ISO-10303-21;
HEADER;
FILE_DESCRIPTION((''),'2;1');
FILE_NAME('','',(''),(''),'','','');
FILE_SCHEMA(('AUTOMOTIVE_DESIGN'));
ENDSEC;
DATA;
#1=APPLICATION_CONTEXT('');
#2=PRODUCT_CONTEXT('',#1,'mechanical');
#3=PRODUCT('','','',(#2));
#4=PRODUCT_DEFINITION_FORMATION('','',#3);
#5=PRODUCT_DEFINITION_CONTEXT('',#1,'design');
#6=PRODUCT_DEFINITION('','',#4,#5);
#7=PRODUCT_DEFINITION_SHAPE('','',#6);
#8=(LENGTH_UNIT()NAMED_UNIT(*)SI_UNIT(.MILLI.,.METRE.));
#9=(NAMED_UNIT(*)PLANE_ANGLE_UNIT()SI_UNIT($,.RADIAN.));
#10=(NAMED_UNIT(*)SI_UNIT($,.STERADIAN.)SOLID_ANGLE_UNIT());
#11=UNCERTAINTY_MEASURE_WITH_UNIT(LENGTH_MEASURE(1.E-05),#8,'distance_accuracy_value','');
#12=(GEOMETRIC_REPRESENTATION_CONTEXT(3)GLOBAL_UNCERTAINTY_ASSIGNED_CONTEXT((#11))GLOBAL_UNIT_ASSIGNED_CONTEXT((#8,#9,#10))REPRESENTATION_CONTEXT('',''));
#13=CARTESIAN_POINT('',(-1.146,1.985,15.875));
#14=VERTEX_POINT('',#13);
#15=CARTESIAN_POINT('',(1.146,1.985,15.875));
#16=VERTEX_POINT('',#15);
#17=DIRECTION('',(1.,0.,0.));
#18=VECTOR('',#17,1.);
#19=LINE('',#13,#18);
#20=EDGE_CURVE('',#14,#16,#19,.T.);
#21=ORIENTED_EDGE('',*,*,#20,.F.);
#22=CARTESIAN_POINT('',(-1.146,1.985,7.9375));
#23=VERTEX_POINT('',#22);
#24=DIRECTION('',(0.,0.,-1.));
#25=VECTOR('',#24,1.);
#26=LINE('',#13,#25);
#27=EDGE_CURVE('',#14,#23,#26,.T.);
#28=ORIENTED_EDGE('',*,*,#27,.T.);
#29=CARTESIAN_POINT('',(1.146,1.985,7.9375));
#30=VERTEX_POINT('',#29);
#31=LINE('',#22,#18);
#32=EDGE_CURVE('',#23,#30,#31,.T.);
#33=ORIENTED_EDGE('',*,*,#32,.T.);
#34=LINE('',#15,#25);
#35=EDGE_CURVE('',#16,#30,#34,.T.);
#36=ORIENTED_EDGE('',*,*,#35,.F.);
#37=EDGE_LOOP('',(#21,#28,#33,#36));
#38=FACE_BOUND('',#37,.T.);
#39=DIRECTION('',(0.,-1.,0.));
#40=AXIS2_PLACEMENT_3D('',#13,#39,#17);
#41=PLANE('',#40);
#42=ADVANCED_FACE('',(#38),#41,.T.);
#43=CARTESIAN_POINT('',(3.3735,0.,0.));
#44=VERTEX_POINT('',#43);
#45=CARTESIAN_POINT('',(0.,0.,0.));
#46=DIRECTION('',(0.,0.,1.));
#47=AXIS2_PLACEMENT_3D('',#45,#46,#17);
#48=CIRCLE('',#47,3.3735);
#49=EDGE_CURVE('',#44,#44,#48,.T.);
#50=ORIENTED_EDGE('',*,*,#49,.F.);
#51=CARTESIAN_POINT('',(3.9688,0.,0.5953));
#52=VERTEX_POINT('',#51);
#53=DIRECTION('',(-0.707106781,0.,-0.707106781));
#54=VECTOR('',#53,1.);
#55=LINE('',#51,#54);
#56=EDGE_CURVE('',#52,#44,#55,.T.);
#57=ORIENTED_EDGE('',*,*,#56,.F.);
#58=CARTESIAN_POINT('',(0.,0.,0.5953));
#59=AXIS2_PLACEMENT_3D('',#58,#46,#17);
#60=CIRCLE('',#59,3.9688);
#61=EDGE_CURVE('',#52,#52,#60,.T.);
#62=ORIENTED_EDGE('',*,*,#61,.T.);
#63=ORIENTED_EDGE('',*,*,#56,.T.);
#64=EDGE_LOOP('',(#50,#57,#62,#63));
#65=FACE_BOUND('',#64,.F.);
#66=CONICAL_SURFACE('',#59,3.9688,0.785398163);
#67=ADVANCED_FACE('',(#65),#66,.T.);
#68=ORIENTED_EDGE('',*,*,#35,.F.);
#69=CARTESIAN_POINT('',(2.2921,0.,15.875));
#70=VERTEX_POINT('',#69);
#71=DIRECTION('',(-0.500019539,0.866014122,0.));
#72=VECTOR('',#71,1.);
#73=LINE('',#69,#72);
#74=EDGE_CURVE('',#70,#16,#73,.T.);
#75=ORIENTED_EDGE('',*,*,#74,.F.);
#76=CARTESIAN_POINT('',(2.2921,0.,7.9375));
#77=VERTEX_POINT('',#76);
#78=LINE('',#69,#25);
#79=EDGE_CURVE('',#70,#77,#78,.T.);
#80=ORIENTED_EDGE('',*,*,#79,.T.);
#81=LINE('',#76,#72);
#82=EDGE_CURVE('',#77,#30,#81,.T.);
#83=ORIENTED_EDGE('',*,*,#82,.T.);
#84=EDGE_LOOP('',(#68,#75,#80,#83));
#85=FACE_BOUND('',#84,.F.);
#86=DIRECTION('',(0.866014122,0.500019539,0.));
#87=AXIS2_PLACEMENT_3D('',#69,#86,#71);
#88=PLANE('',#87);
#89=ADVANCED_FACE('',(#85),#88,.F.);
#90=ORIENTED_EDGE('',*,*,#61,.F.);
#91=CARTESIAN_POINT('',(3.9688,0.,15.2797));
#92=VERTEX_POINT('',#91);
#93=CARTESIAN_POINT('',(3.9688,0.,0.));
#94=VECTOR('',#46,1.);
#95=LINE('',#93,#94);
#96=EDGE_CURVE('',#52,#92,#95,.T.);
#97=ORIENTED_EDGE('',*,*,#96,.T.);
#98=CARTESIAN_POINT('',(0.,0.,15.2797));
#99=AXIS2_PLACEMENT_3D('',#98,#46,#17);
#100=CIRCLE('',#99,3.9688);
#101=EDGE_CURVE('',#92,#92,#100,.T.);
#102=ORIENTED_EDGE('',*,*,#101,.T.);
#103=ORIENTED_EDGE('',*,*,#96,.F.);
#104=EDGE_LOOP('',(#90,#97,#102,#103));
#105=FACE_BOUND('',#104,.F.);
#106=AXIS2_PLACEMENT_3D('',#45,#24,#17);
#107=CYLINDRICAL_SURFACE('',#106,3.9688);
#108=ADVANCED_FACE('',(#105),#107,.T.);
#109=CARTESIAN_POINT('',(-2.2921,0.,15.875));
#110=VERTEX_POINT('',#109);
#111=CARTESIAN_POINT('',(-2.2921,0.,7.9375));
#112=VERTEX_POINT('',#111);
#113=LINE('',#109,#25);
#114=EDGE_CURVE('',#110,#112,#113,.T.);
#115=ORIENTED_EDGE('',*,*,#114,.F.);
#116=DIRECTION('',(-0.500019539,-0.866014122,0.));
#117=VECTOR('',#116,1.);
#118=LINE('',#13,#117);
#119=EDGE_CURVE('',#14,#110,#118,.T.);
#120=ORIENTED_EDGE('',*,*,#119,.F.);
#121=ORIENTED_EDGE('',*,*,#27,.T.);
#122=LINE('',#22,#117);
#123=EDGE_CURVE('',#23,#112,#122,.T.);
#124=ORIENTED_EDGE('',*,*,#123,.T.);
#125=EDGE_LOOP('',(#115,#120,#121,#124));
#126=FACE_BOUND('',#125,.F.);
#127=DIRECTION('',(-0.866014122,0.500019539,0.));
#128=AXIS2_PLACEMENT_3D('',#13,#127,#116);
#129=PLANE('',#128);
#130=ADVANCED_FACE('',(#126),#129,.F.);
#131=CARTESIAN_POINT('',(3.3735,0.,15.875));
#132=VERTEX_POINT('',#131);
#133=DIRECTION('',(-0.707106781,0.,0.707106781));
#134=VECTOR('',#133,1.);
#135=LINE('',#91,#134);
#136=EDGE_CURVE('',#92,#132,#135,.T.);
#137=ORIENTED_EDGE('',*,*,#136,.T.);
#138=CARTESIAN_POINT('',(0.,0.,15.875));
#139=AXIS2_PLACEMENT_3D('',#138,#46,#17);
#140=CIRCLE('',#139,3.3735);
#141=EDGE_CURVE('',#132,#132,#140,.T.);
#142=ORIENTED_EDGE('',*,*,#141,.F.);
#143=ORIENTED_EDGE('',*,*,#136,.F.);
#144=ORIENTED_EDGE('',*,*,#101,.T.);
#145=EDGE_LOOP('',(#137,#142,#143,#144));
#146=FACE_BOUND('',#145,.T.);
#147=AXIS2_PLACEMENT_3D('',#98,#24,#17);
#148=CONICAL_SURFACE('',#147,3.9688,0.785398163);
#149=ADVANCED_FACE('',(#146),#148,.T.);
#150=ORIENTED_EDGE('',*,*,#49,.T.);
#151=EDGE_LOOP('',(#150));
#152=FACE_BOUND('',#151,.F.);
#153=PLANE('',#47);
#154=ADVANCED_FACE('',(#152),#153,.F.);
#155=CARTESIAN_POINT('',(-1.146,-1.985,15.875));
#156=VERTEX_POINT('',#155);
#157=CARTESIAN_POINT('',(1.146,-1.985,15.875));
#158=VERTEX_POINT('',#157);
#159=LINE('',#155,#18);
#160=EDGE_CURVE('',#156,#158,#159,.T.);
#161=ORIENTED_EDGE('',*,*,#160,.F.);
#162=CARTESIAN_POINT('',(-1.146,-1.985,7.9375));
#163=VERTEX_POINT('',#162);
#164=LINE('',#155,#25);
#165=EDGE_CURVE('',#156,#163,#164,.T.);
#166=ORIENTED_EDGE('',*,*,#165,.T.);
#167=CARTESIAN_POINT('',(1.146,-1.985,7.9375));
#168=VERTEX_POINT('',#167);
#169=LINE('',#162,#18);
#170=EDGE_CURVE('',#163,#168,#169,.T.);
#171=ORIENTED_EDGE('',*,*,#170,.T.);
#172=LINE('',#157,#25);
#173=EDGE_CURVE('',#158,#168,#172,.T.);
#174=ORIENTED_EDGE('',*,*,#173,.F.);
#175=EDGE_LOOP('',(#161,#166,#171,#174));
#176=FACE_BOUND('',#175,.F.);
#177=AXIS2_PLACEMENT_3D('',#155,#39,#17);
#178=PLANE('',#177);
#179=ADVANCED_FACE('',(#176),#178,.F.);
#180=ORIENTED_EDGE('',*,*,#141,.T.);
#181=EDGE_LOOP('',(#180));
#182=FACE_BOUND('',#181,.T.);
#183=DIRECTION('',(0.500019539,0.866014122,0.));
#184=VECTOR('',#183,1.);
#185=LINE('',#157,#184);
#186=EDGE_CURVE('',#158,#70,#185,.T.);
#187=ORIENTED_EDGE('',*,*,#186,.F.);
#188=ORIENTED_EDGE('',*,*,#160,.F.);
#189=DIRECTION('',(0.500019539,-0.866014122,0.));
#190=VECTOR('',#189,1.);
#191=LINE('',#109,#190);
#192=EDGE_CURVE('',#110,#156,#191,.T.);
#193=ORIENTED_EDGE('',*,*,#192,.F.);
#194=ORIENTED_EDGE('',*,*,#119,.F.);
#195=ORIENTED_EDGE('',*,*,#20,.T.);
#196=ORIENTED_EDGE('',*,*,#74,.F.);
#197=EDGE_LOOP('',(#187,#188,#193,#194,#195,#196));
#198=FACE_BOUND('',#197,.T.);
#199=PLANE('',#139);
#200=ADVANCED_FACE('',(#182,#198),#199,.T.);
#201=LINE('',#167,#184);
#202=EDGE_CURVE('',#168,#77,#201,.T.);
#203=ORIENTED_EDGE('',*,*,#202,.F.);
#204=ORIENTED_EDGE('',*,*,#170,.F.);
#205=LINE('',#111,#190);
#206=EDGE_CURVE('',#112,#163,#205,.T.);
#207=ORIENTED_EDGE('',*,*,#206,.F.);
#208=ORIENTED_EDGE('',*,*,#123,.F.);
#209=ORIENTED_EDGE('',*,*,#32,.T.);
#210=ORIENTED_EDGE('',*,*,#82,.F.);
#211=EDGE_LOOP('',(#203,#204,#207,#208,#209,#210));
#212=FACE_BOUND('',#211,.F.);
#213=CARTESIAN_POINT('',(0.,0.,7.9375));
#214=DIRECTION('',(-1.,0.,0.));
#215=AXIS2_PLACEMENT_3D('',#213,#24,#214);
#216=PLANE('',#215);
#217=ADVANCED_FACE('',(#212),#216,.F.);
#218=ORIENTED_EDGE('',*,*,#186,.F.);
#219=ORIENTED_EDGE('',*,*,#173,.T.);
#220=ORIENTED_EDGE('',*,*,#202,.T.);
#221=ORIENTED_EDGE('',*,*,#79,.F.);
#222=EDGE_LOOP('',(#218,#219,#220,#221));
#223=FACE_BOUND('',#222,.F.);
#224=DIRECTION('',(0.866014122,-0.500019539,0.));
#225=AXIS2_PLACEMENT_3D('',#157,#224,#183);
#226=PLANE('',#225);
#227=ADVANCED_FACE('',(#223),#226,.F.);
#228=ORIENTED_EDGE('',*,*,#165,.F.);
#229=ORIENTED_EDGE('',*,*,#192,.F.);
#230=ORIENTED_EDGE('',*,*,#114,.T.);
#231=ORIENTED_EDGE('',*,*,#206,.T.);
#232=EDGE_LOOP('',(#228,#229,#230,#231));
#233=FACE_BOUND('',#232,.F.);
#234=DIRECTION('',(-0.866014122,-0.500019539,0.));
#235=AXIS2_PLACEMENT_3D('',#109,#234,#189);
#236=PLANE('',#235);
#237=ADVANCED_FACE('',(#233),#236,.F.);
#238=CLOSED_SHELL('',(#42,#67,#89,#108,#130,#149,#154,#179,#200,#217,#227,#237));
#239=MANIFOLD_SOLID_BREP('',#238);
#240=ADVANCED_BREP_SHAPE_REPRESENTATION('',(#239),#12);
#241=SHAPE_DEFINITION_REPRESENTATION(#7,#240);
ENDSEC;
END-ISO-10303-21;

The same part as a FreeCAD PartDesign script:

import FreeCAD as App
import Part
import Sketcher
from FreeCAD import Vector
Q = App.Units.Quantity


def edges_at(feature, points):
    """Names of the edges that pass closest to the given points."""
    edges = feature.Shape.Edges
    near = lambda p: min(range(len(edges)), key=lambda i: edges[i].distToShape(Part.Vertex(*p))[0])
    return sorted({f"Edge{near(p) + 1}" for p in points})

doc = App.newDocument("Part")
body = doc.addObject("PartDesign::Body", "Body")

# Sketch on XY plane
sketch1 = doc.addObject("Sketcher::SketchObject", "Sketch")
body.addObject(sketch1)
sketch1.AttachmentSupport = (doc.XY_Plane, [""])
sketch1.MapMode = "FlatFace"
sketch1.addGeometry(Part.Circle(Vector(0, 0, 0), Vector(0, 0, 1), 3.9688), False)
sketch1.addConstraint(Sketcher.Constraint("Coincident", 0, 3, -1, 1))
sketch1.addConstraint(Sketcher.Constraint("Diameter", 0, Q("0.3125 in")))
pad1 = doc.addObject("PartDesign::Pad", "Pad")
body.addObject(pad1)
pad1.Profile = sketch1
pad1.Length = Q("0.625 in")
doc.recompute()

chamfer = doc.addObject("PartDesign::Chamfer", "Chamfer")
body.addObject(chamfer)
chamfer.Base = (pad1, edges_at(pad1, [(-3.969, 0, 0), (-3.969, 0, 15.875)]))
chamfer.Size = 0.5953

# Sketch on XY plane
sketch2 = doc.addObject("Sketcher::SketchObject", "Sketch001")
body.addObject(sketch2)
sketch2.AttachmentSupport = (doc.XY_Plane, [""])
sketch2.MapMode = "FlatFace"
sketch2.AttachmentOffset = App.Placement(Vector(0, 0, 0.625 * 25.4), App.Rotation())
sketch2.addGeometry(Part.LineSegment(Vector(1.146, 1.985, 0), Vector(-1.146, 1.985, 0)), False)
sketch2.addGeometry(Part.LineSegment(Vector(-1.146, 1.985, 0), Vector(-2.2921, 0, 0)), False)
sketch2.addGeometry(Part.LineSegment(Vector(-2.2921, 0, 0), Vector(-1.146, -1.985, 0)), False)
sketch2.addGeometry(Part.LineSegment(Vector(-1.146, -1.985, 0), Vector(1.146, -1.985, 0)), False)
sketch2.addGeometry(Part.LineSegment(Vector(1.146, -1.985, 0), Vector(2.2921, 0, 0)), False)
sketch2.addGeometry(Part.LineSegment(Vector(2.2921, 0, 0), Vector(1.146, 1.985, 0)), False)
sketch2.addConstraint(Sketcher.Constraint("Coincident", 0, 2, 1, 1))
sketch2.addConstraint(Sketcher.Constraint("Coincident", 1, 2, 2, 1))
sketch2.addConstraint(Sketcher.Constraint("Coincident", 2, 2, 3, 1))
sketch2.addConstraint(Sketcher.Constraint("Coincident", 3, 2, 4, 1))
sketch2.addConstraint(Sketcher.Constraint("Coincident", 4, 2, 5, 1))
sketch2.addConstraint(Sketcher.Constraint("Coincident", 5, 2, 0, 1))
sketch2.addConstraint(Sketcher.Constraint("Horizontal", 0))
sketch2.addConstraint(Sketcher.Constraint("Horizontal", 3))
sketch2.addConstraint(Sketcher.Constraint("Symmetric", 0, 2, 3, 2, -1, 1))
sketch2.addConstraint(Sketcher.Constraint("Symmetric", 1, 2, 4, 2, -1, 1))
sketch2.addConstraint(Sketcher.Constraint("PointOnObject", 1, 2, -1))
sketch2.addConstraint(Sketcher.Constraint("Parallel", 2, 5))
sketch2.addConstraint(Sketcher.Constraint("Vertical", 0, 2, 2, 2))
sketch2.addConstraint(Sketcher.Constraint("DistanceX", 0, 2, 0, 1, 2.292))
sketch2.addConstraint(Sketcher.Constraint("DistanceY", 2, 2, 0, 2, Q("0.1563 in")))
sketch2.addConstraint(Sketcher.Constraint("Distance", 1, 2.292))
pocket1 = doc.addObject("PartDesign::Pocket", "Pocket")
body.addObject(pocket1)
pocket1.Profile = sketch2
pocket1.Length = Q("0.3125 in")

doc.recompute()
